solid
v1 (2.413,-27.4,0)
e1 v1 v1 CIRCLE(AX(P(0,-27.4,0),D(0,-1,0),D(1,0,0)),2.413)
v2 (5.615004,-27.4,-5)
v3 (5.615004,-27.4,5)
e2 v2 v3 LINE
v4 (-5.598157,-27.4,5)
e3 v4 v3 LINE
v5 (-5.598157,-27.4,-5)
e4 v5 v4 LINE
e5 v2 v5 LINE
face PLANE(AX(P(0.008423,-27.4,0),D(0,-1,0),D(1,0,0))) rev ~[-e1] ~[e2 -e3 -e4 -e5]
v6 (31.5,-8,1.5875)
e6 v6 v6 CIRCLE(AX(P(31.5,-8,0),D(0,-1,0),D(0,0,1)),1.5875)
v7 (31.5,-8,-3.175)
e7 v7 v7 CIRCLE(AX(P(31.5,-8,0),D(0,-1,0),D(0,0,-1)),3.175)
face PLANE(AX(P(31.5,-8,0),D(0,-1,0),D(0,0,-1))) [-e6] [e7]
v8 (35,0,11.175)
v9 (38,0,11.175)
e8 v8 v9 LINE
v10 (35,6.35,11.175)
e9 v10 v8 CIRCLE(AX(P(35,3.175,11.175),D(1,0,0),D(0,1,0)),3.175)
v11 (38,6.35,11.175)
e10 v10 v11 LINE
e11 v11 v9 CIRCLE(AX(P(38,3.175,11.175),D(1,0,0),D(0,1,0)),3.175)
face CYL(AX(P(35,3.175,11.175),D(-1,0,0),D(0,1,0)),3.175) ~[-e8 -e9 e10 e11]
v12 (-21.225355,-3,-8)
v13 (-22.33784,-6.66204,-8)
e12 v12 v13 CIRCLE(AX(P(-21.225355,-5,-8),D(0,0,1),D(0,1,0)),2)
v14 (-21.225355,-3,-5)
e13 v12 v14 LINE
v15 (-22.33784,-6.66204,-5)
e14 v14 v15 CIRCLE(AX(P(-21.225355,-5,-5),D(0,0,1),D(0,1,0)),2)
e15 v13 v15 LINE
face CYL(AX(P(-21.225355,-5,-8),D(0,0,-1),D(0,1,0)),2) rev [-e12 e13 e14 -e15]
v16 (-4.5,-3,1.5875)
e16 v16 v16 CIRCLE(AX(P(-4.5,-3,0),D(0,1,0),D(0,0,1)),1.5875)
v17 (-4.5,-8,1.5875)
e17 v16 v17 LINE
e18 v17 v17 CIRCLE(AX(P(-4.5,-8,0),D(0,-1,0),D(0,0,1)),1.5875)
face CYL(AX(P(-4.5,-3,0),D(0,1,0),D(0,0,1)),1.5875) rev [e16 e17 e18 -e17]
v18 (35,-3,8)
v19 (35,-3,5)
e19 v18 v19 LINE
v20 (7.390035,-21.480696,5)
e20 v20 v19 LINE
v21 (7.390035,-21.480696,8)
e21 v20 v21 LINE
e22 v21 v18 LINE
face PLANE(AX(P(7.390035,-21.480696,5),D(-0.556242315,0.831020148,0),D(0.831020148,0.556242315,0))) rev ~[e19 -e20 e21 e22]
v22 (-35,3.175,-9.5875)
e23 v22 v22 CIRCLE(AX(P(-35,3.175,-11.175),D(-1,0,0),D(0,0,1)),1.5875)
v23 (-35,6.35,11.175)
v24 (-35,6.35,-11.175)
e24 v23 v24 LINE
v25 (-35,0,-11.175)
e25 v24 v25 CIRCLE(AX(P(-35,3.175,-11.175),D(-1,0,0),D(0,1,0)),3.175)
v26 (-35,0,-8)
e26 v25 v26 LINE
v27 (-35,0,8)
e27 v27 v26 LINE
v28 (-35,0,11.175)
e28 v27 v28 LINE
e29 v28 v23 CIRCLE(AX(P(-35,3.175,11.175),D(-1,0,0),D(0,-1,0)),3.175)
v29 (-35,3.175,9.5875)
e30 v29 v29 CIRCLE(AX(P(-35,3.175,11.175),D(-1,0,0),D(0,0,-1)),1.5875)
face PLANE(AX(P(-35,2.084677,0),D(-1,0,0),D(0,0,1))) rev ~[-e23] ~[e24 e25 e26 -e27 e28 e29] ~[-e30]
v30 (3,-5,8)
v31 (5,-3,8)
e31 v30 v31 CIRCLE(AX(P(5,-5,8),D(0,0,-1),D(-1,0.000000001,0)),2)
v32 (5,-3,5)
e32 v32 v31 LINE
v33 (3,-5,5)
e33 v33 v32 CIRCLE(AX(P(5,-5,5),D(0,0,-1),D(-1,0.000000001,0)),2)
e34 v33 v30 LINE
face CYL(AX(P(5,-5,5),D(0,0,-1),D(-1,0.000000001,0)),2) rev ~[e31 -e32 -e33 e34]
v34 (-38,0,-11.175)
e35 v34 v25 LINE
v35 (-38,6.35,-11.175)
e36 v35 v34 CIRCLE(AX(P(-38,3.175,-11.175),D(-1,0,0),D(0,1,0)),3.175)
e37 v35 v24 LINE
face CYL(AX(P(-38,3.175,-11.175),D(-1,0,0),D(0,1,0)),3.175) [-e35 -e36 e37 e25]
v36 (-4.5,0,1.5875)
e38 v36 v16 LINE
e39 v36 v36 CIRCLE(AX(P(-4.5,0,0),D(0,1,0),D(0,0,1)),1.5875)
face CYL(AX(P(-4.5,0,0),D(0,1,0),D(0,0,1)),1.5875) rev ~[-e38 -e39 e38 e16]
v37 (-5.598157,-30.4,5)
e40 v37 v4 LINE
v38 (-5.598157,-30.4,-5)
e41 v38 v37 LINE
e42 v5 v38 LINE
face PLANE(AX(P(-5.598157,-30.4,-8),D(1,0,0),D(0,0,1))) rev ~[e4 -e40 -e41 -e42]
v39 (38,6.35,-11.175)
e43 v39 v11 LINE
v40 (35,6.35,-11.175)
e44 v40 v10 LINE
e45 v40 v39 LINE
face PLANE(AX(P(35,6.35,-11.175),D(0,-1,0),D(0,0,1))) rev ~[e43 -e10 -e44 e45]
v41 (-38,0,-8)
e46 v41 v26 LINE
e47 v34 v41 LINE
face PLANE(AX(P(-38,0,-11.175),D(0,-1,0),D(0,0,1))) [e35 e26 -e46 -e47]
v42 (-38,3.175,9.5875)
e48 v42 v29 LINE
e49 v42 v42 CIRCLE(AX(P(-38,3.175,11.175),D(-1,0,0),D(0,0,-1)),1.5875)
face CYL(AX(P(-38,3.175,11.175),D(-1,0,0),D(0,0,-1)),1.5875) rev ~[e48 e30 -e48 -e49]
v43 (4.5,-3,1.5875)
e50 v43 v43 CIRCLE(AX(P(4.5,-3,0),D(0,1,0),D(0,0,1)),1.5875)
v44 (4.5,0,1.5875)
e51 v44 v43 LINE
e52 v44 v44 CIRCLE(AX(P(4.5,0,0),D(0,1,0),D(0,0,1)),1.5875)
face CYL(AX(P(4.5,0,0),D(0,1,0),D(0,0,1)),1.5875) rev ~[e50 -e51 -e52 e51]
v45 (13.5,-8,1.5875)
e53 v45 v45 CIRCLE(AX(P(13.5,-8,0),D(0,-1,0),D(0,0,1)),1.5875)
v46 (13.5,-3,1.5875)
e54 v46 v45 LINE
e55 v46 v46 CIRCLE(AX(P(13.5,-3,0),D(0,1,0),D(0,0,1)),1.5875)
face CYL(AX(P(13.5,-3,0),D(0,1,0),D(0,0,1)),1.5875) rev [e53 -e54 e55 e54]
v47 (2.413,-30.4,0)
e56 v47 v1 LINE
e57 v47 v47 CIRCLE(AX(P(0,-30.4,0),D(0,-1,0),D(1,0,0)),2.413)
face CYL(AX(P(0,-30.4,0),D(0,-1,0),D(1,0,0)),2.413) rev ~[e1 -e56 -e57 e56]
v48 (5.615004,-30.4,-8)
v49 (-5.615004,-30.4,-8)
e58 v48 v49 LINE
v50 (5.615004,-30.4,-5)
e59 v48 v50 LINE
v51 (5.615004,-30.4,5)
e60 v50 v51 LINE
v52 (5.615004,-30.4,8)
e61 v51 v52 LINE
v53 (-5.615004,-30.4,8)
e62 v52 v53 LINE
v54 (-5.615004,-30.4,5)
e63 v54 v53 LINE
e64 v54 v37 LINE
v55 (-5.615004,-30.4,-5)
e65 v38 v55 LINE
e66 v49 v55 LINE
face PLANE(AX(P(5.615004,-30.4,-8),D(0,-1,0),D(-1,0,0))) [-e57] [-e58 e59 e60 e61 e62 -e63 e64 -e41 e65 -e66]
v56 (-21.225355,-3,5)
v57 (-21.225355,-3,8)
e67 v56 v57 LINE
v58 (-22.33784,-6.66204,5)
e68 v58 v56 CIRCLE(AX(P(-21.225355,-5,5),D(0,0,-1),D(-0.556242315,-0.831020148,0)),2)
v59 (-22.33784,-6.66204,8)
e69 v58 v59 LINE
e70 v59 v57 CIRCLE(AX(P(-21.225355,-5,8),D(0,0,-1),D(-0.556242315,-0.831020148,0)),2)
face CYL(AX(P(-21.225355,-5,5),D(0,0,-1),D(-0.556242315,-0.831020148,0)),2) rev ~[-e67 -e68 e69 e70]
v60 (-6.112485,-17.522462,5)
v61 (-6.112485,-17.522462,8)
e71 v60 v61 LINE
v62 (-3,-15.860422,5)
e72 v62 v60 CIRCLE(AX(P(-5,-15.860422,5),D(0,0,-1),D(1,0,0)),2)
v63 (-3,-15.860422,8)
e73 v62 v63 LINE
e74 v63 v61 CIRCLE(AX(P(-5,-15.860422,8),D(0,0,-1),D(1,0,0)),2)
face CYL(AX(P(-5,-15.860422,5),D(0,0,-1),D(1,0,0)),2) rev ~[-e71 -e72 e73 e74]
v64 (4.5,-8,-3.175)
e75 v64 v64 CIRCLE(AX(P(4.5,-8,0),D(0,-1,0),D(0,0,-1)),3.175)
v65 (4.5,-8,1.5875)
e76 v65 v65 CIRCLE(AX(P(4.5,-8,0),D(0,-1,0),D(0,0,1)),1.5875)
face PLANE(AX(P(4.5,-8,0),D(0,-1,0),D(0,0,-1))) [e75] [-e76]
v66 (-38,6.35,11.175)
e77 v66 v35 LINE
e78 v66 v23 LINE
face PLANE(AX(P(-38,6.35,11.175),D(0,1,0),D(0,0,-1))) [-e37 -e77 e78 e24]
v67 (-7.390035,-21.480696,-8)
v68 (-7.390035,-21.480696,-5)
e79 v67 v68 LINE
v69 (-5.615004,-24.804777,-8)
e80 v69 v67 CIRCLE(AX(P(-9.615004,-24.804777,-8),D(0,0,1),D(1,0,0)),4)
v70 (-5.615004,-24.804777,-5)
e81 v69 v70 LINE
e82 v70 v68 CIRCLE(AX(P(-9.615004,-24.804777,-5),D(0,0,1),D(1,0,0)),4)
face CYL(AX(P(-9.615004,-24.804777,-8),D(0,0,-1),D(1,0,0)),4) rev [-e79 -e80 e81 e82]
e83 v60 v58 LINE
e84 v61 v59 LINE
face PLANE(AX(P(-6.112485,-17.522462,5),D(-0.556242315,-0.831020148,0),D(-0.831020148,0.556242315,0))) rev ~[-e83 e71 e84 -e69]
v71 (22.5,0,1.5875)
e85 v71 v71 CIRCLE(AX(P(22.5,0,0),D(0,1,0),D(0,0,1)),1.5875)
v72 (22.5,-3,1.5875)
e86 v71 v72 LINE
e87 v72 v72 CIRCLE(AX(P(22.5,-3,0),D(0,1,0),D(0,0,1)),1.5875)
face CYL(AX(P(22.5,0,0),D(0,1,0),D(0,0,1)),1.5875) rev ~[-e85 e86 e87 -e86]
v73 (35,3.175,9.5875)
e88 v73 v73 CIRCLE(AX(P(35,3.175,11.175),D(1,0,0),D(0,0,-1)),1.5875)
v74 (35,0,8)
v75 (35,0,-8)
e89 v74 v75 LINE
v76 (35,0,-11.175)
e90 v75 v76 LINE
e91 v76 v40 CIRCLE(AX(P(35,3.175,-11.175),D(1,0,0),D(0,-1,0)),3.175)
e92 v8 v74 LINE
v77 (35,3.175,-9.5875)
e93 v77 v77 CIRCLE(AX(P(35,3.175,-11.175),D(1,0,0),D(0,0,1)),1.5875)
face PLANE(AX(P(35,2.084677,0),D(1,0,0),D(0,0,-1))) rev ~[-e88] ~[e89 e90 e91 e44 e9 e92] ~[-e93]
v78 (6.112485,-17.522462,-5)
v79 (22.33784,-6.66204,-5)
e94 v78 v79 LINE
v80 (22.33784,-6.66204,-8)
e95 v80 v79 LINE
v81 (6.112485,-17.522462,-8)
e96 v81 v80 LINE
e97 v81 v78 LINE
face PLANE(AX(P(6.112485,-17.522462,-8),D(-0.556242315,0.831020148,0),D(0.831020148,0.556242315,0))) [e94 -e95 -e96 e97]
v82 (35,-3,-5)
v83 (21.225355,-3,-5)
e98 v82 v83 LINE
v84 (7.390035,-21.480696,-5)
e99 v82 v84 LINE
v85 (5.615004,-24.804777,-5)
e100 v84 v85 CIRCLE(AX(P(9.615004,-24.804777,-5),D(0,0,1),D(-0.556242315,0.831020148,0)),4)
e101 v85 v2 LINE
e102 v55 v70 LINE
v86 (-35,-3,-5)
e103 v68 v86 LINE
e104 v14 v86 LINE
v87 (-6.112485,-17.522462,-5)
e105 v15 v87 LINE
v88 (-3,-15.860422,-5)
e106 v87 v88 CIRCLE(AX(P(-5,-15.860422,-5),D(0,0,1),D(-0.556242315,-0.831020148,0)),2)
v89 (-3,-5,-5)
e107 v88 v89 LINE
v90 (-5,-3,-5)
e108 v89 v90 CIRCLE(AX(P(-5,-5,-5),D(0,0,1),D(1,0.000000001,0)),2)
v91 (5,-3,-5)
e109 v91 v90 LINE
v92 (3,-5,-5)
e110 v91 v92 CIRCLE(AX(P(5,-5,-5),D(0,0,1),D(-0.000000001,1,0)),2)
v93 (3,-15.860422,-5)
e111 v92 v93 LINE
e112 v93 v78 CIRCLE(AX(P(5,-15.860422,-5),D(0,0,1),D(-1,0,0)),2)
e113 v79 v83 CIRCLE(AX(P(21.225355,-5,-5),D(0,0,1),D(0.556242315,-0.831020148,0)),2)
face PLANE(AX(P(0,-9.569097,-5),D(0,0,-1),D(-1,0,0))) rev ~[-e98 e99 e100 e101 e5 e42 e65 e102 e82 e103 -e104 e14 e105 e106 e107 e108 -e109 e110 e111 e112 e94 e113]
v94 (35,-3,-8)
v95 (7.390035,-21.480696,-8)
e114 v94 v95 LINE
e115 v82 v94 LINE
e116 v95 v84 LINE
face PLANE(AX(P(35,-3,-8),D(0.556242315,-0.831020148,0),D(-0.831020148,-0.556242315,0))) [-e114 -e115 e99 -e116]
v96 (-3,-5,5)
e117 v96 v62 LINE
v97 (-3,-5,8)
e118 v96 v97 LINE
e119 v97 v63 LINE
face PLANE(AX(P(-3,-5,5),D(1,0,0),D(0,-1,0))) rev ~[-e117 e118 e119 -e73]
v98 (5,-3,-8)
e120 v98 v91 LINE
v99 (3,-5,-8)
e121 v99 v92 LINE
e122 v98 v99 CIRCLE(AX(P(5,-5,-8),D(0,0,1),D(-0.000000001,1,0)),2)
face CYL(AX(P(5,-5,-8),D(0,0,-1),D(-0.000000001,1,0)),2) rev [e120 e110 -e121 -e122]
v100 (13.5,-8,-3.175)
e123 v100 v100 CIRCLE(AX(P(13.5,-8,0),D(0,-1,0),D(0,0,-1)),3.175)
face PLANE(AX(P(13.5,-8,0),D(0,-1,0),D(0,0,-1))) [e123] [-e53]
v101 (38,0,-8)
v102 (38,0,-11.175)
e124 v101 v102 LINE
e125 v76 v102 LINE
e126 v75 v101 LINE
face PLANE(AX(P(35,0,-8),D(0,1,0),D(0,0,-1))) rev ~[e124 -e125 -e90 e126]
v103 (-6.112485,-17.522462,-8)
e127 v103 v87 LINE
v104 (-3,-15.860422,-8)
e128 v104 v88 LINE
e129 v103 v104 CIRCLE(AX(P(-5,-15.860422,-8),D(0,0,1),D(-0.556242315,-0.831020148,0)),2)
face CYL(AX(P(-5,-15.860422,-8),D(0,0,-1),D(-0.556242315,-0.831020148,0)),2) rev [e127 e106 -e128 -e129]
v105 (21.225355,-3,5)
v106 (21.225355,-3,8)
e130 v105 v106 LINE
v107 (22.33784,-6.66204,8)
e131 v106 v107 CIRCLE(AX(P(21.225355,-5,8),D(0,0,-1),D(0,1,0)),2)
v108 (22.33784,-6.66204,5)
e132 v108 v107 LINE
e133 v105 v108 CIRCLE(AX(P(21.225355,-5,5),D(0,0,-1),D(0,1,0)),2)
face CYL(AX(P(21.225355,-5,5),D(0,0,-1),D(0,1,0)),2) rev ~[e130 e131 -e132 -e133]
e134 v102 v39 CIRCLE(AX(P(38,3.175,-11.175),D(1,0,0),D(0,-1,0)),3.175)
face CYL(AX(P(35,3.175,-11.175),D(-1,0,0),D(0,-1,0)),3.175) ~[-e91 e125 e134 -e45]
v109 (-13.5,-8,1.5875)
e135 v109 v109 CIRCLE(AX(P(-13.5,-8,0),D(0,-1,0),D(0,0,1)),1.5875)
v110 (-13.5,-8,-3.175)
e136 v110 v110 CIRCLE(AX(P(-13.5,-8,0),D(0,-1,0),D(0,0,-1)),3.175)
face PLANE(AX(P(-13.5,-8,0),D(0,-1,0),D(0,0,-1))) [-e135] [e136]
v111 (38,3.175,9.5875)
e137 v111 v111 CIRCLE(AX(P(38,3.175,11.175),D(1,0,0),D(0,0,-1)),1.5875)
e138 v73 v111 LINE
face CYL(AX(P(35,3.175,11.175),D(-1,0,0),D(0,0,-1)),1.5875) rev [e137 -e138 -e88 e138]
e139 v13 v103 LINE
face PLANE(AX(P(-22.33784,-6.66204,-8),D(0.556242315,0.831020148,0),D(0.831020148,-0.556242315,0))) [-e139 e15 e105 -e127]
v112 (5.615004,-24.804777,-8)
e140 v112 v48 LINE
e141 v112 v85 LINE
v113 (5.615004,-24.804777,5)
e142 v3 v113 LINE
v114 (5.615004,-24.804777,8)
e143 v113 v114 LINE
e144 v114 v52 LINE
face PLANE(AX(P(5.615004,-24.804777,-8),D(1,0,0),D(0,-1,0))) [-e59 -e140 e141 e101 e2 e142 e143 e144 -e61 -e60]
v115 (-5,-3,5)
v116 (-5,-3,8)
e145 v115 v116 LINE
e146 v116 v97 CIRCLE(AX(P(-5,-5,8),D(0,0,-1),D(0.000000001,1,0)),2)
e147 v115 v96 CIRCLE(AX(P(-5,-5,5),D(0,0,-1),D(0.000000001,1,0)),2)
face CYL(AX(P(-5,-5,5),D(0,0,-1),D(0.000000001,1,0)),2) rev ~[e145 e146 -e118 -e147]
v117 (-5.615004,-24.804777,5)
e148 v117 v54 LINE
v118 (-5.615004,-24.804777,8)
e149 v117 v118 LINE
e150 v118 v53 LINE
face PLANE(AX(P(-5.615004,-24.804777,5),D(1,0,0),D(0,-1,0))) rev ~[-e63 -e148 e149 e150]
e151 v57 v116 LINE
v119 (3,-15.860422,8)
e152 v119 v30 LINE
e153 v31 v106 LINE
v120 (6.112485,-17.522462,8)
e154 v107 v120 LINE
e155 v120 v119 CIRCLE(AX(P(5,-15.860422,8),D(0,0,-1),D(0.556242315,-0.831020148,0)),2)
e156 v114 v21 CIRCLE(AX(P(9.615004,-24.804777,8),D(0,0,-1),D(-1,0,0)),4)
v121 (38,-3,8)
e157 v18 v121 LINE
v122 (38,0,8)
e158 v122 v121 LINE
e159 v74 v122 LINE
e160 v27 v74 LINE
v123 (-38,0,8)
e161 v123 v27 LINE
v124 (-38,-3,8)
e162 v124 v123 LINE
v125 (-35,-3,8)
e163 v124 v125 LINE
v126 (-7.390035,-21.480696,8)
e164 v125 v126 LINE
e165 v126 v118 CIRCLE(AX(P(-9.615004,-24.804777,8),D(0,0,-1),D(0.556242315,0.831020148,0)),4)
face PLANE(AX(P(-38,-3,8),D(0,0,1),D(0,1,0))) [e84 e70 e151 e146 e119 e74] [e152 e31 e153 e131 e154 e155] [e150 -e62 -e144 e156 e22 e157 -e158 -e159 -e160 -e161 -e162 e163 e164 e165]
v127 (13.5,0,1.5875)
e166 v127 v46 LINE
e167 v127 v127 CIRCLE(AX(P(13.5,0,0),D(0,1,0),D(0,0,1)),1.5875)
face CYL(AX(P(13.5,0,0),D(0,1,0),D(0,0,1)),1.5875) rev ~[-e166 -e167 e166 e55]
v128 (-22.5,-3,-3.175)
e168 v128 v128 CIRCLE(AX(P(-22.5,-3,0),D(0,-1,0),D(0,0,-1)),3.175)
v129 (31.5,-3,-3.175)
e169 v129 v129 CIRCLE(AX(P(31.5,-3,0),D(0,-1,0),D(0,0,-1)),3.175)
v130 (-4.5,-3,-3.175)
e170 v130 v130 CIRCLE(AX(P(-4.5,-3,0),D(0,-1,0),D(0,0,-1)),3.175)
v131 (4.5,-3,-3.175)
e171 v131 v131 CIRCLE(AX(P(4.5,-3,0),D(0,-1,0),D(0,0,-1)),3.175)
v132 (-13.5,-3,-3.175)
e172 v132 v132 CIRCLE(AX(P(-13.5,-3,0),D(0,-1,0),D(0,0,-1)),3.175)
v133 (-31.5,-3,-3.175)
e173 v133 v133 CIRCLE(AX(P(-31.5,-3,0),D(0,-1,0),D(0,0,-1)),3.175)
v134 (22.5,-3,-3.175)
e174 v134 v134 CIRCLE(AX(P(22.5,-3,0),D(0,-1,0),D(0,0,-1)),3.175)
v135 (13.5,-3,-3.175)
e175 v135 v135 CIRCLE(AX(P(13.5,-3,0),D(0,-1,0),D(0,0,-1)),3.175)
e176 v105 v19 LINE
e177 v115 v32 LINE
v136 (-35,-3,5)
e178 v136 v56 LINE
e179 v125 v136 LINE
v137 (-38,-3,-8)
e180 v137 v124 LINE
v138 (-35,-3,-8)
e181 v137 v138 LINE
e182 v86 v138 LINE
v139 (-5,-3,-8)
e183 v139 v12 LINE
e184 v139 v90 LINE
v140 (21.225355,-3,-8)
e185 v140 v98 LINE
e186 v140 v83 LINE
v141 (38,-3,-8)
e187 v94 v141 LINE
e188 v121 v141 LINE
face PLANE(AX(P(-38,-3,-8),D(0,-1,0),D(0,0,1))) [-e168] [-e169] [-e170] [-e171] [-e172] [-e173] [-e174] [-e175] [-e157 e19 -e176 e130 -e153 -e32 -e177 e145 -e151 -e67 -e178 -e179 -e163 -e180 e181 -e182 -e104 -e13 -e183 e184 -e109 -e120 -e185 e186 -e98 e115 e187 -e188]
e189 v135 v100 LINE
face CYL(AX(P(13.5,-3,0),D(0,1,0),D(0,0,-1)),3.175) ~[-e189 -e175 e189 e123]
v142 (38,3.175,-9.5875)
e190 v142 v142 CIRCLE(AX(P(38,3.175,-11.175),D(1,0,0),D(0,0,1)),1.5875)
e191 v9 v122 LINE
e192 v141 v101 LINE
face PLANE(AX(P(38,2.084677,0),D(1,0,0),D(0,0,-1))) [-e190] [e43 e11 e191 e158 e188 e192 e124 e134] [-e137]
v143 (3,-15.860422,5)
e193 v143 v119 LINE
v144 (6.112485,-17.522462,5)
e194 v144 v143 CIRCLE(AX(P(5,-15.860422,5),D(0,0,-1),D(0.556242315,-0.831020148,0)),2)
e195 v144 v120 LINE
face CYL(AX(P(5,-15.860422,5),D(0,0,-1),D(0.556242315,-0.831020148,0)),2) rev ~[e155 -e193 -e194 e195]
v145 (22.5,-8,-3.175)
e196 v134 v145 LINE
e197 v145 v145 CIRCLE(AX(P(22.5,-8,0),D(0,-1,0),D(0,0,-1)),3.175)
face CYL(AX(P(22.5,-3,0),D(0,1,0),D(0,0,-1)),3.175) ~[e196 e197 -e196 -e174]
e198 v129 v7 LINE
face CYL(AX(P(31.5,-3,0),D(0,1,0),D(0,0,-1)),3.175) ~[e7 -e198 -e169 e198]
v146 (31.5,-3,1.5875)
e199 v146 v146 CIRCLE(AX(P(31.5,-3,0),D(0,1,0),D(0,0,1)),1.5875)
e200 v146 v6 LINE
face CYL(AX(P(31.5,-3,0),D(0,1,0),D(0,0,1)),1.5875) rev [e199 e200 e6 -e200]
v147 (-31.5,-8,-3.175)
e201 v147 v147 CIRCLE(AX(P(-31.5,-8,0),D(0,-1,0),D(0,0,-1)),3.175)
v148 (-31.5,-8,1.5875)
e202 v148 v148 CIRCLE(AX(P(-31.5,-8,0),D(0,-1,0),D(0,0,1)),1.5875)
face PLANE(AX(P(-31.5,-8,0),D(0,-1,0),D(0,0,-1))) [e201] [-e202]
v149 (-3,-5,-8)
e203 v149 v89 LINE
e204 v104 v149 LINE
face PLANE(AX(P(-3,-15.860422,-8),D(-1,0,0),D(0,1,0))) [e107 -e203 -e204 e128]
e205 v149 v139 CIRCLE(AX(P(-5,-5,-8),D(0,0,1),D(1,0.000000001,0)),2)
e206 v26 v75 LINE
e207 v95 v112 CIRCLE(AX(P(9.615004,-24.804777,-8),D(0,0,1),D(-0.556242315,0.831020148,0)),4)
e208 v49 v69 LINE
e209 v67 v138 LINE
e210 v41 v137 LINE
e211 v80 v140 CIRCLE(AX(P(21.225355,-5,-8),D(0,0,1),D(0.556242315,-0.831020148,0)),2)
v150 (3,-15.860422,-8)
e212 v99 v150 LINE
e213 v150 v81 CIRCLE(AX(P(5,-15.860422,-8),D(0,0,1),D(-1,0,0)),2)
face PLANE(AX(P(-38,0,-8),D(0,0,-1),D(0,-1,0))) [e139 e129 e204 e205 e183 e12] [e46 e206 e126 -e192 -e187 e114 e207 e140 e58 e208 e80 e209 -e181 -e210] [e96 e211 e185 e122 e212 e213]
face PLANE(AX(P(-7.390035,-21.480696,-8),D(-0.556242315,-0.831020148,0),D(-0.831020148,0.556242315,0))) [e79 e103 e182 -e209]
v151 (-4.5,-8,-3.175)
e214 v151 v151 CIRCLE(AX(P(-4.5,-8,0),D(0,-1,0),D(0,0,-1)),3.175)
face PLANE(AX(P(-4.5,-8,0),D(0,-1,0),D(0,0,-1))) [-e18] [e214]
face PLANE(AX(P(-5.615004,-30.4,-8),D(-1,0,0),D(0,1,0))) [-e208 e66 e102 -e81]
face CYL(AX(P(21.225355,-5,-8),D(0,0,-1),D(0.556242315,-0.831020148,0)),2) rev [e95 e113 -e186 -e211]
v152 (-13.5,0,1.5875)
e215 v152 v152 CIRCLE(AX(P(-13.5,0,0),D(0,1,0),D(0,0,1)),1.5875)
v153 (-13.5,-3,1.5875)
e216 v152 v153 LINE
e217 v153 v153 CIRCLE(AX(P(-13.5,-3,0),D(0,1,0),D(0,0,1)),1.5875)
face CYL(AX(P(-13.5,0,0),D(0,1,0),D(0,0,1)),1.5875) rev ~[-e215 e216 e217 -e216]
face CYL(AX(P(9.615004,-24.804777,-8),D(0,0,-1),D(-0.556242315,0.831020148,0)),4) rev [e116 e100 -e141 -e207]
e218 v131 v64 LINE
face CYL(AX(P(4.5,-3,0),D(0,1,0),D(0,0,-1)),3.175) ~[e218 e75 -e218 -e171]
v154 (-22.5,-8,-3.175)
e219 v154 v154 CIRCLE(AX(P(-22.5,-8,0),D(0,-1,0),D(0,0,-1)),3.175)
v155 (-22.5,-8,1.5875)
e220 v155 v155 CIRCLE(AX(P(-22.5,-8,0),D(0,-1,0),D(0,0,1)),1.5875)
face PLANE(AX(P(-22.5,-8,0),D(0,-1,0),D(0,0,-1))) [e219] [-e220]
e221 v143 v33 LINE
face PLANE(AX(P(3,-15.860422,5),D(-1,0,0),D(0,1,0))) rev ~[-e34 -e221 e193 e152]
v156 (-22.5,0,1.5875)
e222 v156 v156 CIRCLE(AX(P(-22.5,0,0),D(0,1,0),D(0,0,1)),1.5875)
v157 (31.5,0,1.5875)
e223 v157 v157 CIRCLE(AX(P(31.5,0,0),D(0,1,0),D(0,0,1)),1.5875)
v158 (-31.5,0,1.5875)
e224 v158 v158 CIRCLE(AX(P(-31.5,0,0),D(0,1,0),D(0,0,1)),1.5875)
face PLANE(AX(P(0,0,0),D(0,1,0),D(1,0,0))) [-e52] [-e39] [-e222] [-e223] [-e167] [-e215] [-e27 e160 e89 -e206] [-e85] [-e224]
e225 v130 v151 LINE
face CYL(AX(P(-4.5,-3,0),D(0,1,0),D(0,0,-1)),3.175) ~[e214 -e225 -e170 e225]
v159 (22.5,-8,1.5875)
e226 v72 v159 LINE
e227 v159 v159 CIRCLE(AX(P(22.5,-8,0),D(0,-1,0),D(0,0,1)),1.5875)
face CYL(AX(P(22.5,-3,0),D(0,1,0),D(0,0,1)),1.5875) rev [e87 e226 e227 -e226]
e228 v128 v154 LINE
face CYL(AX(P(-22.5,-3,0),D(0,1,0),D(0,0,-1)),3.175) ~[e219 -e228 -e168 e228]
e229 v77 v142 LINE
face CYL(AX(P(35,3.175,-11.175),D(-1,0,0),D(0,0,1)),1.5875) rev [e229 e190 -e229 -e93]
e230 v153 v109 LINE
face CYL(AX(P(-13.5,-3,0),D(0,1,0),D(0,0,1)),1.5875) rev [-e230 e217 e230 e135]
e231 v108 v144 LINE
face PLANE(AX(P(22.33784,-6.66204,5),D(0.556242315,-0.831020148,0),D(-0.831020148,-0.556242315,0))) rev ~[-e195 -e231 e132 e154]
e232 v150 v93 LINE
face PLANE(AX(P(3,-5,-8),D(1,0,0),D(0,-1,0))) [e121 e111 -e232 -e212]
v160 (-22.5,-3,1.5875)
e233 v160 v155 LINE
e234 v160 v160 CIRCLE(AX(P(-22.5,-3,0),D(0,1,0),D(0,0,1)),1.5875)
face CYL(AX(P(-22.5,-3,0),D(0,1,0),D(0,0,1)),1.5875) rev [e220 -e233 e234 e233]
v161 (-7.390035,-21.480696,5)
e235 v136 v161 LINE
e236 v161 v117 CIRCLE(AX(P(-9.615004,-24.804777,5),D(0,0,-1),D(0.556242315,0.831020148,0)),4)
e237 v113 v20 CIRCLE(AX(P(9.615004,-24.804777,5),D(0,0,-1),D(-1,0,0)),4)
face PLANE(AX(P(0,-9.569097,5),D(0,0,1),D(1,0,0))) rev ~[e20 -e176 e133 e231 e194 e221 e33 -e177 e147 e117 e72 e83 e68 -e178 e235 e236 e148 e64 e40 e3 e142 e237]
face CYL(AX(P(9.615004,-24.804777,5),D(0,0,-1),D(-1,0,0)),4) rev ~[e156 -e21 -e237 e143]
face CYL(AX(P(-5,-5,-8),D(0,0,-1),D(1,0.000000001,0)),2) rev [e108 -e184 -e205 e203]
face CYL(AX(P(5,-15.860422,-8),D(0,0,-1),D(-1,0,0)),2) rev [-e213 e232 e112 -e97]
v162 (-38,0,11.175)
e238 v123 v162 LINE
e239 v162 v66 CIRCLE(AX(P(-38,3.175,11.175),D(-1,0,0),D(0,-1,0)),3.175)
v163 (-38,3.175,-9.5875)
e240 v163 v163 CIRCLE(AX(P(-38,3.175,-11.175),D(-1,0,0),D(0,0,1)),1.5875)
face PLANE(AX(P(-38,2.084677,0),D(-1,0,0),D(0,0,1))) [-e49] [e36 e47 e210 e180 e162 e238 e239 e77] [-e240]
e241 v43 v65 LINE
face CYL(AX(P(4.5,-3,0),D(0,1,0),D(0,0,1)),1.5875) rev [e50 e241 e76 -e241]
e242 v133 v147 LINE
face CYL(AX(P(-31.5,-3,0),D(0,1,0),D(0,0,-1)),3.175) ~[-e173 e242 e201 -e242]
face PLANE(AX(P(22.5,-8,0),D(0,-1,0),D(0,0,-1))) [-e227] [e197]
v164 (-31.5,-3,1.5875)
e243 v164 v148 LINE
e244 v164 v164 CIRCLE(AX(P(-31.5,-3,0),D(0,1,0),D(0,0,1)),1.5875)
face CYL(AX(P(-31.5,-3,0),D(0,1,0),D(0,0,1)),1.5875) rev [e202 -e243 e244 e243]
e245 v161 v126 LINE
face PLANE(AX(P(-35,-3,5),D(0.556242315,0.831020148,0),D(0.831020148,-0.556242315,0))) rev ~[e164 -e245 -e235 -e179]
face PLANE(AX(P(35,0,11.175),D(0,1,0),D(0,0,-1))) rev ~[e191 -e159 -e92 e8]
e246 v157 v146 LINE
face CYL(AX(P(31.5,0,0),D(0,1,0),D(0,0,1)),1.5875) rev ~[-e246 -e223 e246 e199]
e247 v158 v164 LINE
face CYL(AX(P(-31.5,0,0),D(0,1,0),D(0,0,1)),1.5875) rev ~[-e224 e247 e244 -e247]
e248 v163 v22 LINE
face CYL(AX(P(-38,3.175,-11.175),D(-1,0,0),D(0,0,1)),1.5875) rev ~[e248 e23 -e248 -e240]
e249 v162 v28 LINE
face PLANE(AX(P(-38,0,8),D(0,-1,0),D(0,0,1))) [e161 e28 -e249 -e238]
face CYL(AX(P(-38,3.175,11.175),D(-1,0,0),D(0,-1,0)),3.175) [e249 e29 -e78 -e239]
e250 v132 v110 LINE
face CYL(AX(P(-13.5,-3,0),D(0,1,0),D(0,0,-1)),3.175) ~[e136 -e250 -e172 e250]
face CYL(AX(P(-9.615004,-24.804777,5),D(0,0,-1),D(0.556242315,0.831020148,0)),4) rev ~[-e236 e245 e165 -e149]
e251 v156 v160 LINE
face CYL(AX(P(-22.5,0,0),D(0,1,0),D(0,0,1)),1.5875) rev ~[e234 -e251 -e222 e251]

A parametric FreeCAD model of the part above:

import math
import FreeCAD as App
import Part
import Sketcher

doc = App.newDocument("Part")
params = doc.addObject("Spreadsheet::Sheet", "Params")
for row, (alias, value) in enumerate([
    ("sketch1_width", "70 mm"),
    ("sketch1_height", "16 mm"),
    ("pad1_length", "3 mm"),
    ("sketch2_radius", "4 mm"),
    ("sketch2_radius2", "2 mm"),
    ("sketch2_width", "70 mm"),
    ("sketch2_height", "3 mm"),
    ("pad2_length", "3 mm"),
    ("sketch3_radius", "4 mm"),
    ("sketch3_radius2", "2 mm"),
    ("sketch3_width", "70 mm"),
    ("sketch3_height", "3 mm"),
    ("pad3_length", "3 mm"),
    ("sketch4_height", "16 mm"),
    ("pad4_length", "3 mm"),
    ("sketch5_width", "3 mm"),
    ("sketch5_height", "16 mm"),
    ("sketch5_height2", "22.35 mm"),
    ("pad5_length", "3 mm"),
    ("sketch6_width", "3 mm"),
    ("sketch6_height", "16 mm"),
    ("sketch6_height2", "22.35 mm"),
    ("pad6_length", "3 mm"),
    ("sketch7_diameter", "6.35 mm"),
    ("pad7_length", "5 mm"),
], start=1):
    params.set(f"A{row}", alias)
    params.set(f"B{row}", "=" + value)
    params.setAlias(f"B{row}", alias)

body = doc.addObject("PartDesign::Body", "Body")

# Sketch on XZ plane
sketch1 = body.newObject("Sketcher::SketchObject", "Sketch")
sketch1.AttachmentSupport = (doc.getObject("XZ_Plane"), [""])
sketch1.MapMode = "FlatFace"
sketch1.addGeometry([
    Part.LineSegment(App.Vector(-35, -8, 0), App.Vector(-35, 8, 0)),  # 0
    Part.LineSegment(App.Vector(-35, 8, 0), App.Vector(35, 8, 0)),  # 1
    Part.LineSegment(App.Vector(35, 8, 0), App.Vector(35, -8, 0)),  # 2
    Part.LineSegment(App.Vector(35, -8, 0), App.Vector(-35, -8, 0)),  # 3
    Part.Circle(App.Vector(-31.5, 0, 0), App.Vector(0, 0, 1), 1.6),  # 4
    Part.Circle(App.Vector(-22.5, 0, 0), App.Vector(0, 0, 1), 1.6),  # 5
    Part.Circle(App.Vector(-13.5, 0, 0), App.Vector(0, 0, 1), 1.6),  # 6
    Part.Circle(App.Vector(-4.5, 0, 0), App.Vector(0, 0, 1), 1.6),  # 7
    Part.Circle(App.Vector(4.5, 0, 0), App.Vector(0, 0, 1), 1.6),  # 8
    Part.Circle(App.Vector(13.5, 0, 0), App.Vector(0, 0, 1), 1.6),  # 9
    Part.Circle(App.Vector(22.5, 0, 0), App.Vector(0, 0, 1), 1.6),  # 10
    Part.Circle(App.Vector(31.5, 0, 0), App.Vector(0, 0, 1), 1.6),  # 11
], False)
sketch1.addConstraint([
    Sketcher.Constraint("Coincident", 0, 2, 1, 1),
    Sketcher.Constraint("Coincident", 1, 2, 2, 1),
    Sketcher.Constraint("Coincident", 2, 2, 3, 1),
    Sketcher.Constraint("Coincident", 3, 2, 0, 1),
    Sketcher.Constraint("Vertical", 0),
    Sketcher.Constraint("Horizontal", 1),
    Sketcher.Constraint("Vertical", 2),
    Sketcher.Constraint("Horizontal", 3),
    Sketcher.Constraint("Equal", 4, 5),
    Sketcher.Constraint("Equal", 5, 6),
    Sketcher.Constraint("Equal", 6, 7),
    Sketcher.Constraint("Equal", 7, 8),
    Sketcher.Constraint("Equal", 8, 9),
    Sketcher.Constraint("Equal", 9, 10),
    Sketcher.Constraint("Equal", 10, 11),
    Sketcher.Constraint("Symmetric", 7, 3, 8, 3, -1, 1),
    Sketcher.Constraint("Symmetric", 6, 3, 9, 3, -1, 1),
    Sketcher.Constraint("Symmetric", 5, 3, 10, 3, -1, 1),
    Sketcher.Constraint("Symmetric", 4, 3, 11, 3, -1, 1),
    Sketcher.Constraint("Symmetric", 0, 2, 2, 2, -1, 1),
    Sketcher.Constraint("PointOnObject", 4, 3, -1),
    Sketcher.Constraint("PointOnObject", 5, 3, -1),
    Sketcher.Constraint("PointOnObject", 6, 3, -1),
    Sketcher.Constraint("PointOnObject", 7, 3, -1),
    Sketcher.Constraint("DistanceX", 1, 1, 1, 2, 70.0),
    Sketcher.Constraint("DistanceY", 0, 1, 0, 2, 16.0),
    Sketcher.Constraint("Diameter", 4, 3.175),
    Sketcher.Constraint("DistanceX", 4, 3, 5, 3, 9.0),
    Sketcher.Constraint("DistanceX", 5, 3, 6, 3, 9.0),
    Sketcher.Constraint("DistanceX", 6, 3, 7, 3, 9.0),
    Sketcher.Constraint("DistanceX", 7, 3, 8, 3, 9.0),
])
sketch1.setExpression("Constraints[24]", "Params.sketch1_width")
sketch1.setExpression("Constraints[25]", "Params.sketch1_height")
pad1 = body.newObject("PartDesign::Pad", "Pad")
pad1.Profile = sketch1
pad1.setExpression("Length", "Params.pad1_length")

# Sketch on XY plane
sketch2 = body.newObject("Sketcher::SketchObject", "Sketch001")
sketch2.AttachmentSupport = (doc.getObject("XY_Plane"), [""])
sketch2.MapMode = "FlatFace"
sketch2.AttachmentOffset = App.Placement(App.Vector(0, 0, -8), App.Rotation())
sketch2.addGeometry([
    Part.ArcOfCircle(Part.Circle(App.Vector(9.6, -24.8, 0), App.Vector(0, 0, 1), 4), math.radians(124), math.radians(180)),  # 0
    Part.LineSegment(App.Vector(5.6, -24.8, 0), App.Vector(5.6, -30.4, 0)),  # 1
    Part.LineSegment(App.Vector(5.6, -30.4, 0), App.Vector(-5.6, -30.4, 0)),  # 2
    Part.LineSegment(App.Vector(-5.6, -30.4, 0), App.Vector(-5.6, -24.8, 0)),  # 3
    Part.ArcOfCircle(Part.Circle(App.Vector(-9.6, -24.8, 0), App.Vector(0, 0, 1), 4), math.radians(0), math.radians(56)),  # 4
    Part.LineSegment(App.Vector(-7.4, -21.5, 0), App.Vector(-35, -3, 0)),  # 5
    Part.LineSegment(App.Vector(-35, -3, 0), App.Vector(-35, 0, 0)),  # 6
    Part.LineSegment(App.Vector(-35, 0, 0), App.Vector(35, 0, 0)),  # 7
    Part.LineSegment(App.Vector(35, 0, 0), App.Vector(35, -3, 0)),  # 8
    Part.LineSegment(App.Vector(35, -3, 0), App.Vector(7.4, -21.5, 0)),  # 9
    Part.ArcOfCircle(Part.Circle(App.Vector(5, -15.9, 0), App.Vector(0, 0, 1), 2), math.radians(-180), math.radians(-56)),  # 10
    Part.LineSegment(App.Vector(6.1, -17.5, 0), App.Vector(22.3, -6.7, 0)),  # 11
    Part.ArcOfCircle(Part.Circle(App.Vector(21.2, -5, 0), App.Vector(0, 0, 1), 2), math.radians(-56), math.radians(90)),  # 12
    Part.LineSegment(App.Vector(21.2, -3, 0), App.Vector(5, -3, 0)),  # 13
    Part.ArcOfCircle(Part.Circle(App.Vector(5, -5, 0), App.Vector(0, 0, 1), 2), math.radians(90), math.radians(180)),  # 14
    Part.LineSegment(App.Vector(3, -5, 0), App.Vector(3, -15.9, 0)),  # 15
    Part.ArcOfCircle(Part.Circle(App.Vector(-5, -15.9, 0), App.Vector(0, 0, 1), 2), math.radians(-124), math.radians(0)),  # 16
    Part.LineSegment(App.Vector(-3, -15.9, 0), App.Vector(-3, -5, 0)),  # 17
    Part.ArcOfCircle(Part.Circle(App.Vector(-5, -5, 0), App.Vector(0, 0, 1), 2), math.radians(0), math.radians(90)),  # 18
    Part.LineSegment(App.Vector(-5, -3, 0), App.Vector(-21.2, -3, 0)),  # 19
    Part.ArcOfCircle(Part.Circle(App.Vector(-21.2, -5, 0), App.Vector(0, 0, 1), 2), math.radians(90), math.radians(236)),  # 20
    Part.LineSegment(App.Vector(-22.3, -6.7, 0), App.Vector(-6.1, -17.5, 0)),  # 21
], False)
sketch2.addConstraint([
    Sketcher.Constraint("Tangent", 0, 2, 1, 1),
    Sketcher.Constraint("Coincident", 1, 2, 2, 1),
    Sketcher.Constraint("Coincident", 2, 2, 3, 1),
    Sketcher.Constraint("Tangent", 3, 2, 4, 1),
    Sketcher.Constraint("Tangent", 4, 2, 5, 1),
    Sketcher.Constraint("Coincident", 5, 2, 6, 1),
    Sketcher.Constraint("Coincident", 6, 2, 7, 1),
    Sketcher.Constraint("Coincident", 7, 2, 8, 1),
    Sketcher.Constraint("Coincident", 8, 2, 9, 1),
    Sketcher.Constraint("Tangent", 9, 2, 0, 1),
    Sketcher.Constraint("Tangent", 10, 2, 11, 1),
    Sketcher.Constraint("Tangent", 11, 2, 12, 1),
    Sketcher.Constraint("Tangent", 12, 2, 13, 1),
    Sketcher.Constraint("Tangent", 13, 2, 14, 1),
    Sketcher.Constraint("Tangent", 14, 2, 15, 1),
    Sketcher.Constraint("Tangent", 15, 2, 10, 1),
    Sketcher.Constraint("Tangent", 16, 2, 17, 1),
    Sketcher.Constraint("Tangent", 17, 2, 18, 1),
    Sketcher.Constraint("Tangent", 18, 2, 19, 1),
    Sketcher.Constraint("Tangent", 19, 2, 20, 1),
    Sketcher.Constraint("Tangent", 20, 2, 21, 1),
    Sketcher.Constraint("Tangent", 21, 2, 16, 1),
    Sketcher.Constraint("Vertical", 1),
    Sketcher.Constraint("Horizontal", 2),
    Sketcher.Constraint("Vertical", 3),
    Sketcher.Constraint("Vertical", 6),
    Sketcher.Constraint("Horizontal", 7),
    Sketcher.Constraint("Vertical", 8),
    Sketcher.Constraint("Horizontal", 13),
    Sketcher.Constraint("Vertical", 15),
    Sketcher.Constraint("Vertical", 17),
    Sketcher.Constraint("Horizontal", 19),
    Sketcher.Constraint("Equal", 0, 4),
    Sketcher.Constraint("Equal", 10, 12),
    Sketcher.Constraint("Equal", 12, 14),
    Sketcher.Constraint("Equal", 14, 16),
    Sketcher.Constraint("Equal", 16, 18),
    Sketcher.Constraint("Equal", 18, 20),
    Sketcher.Constraint("Symmetric", 6, 2, 7, 2, -1, 1),
    Sketcher.Constraint("Symmetric", 0, 3, 4, 3, -2),
    Sketcher.Constraint("Symmetric", 10, 3, 16, 3, -2),
    Sketcher.Constraint("Symmetric", 12, 3, 20, 3, -2),
    Sketcher.Constraint("Parallel", 9, 11),
    Sketcher.Constraint("Parallel", 5, 21),
    Sketcher.Constraint("Horizontal", 8, 2, 12, 2),
    Sketcher.Constraint("Radius", 0, 4.0),
    Sketcher.Constraint("Radius", 10, 2.0),
    Sketcher.Constraint("DistanceX", 7, 1, 7, 2, 70.0),
    Sketcher.Constraint("DistanceY", 6, 1, 6, 2, 3.0),
    Sketcher.Constraint("DistanceX", -1, 1, 10, 3, 5.0),
    Sketcher.Constraint("DistanceY", 1, 2, -1, 1, 30.4),
    Sketcher.Constraint("DistanceY", 15, 2, 15, 1, 10.860422),
    Sketcher.Constraint("DistanceX", 2, 2, 2, 1, 11.230008),
    Sketcher.Constraint("DistanceX", 13, 2, 13, 1, 16.225355),
])
sketch2.setExpression("Constraints[45]", "Params.sketch2_radius")
sketch2.setExpression("Constraints[46]", "Params.sketch2_radius2")
sketch2.setExpression("Constraints[47]", "Params.sketch2_width")
sketch2.setExpression("Constraints[48]", "Params.sketch2_height")
pad2 = body.newObject("PartDesign::Pad", "Pad001")
pad2.Profile = sketch2
pad2.setExpression("Length", "Params.pad2_length")

# Sketch on XY plane
sketch3 = body.newObject("Sketcher::SketchObject", "Sketch002")
sketch3.AttachmentSupport = (doc.getObject("XY_Plane"), [""])
sketch3.MapMode = "FlatFace"
sketch3.AttachmentOffset = App.Placement(App.Vector(0, 0, 5), App.Rotation())
sketch3.addGeometry([
    Part.ArcOfCircle(Part.Circle(App.Vector(-9.6, -24.8, 0), App.Vector(0, 0, 1), 4), math.radians(0), math.radians(56)),  # 0
    Part.LineSegment(App.Vector(-5.6, -24.8, 0), App.Vector(-5.6, -30.4, 0)),  # 1
    Part.LineSegment(App.Vector(-5.6, -30.4, 0), App.Vector(5.6, -30.4, 0)),  # 2
    Part.LineSegment(App.Vector(5.6, -30.4, 0), App.Vector(5.6, -24.8, 0)),  # 3
    Part.ArcOfCircle(Part.Circle(App.Vector(9.6, -24.8, 0), App.Vector(0, 0, 1), 4), math.radians(124), math.radians(180)),  # 4
    Part.LineSegment(App.Vector(7.4, -21.5, 0), App.Vector(35, -3, 0)),  # 5
    Part.LineSegment(App.Vector(35, -3, 0), App.Vector(35, 0, 0)),  # 6
    Part.LineSegment(App.Vector(35, 0, 0), App.Vector(-35, 0, 0)),  # 7
    Part.LineSegment(App.Vector(-35, 0, 0), App.Vector(-35, -3, 0)),  # 8
    Part.LineSegment(App.Vector(-35, -3, 0), App.Vector(-7.4, -21.5, 0)),  # 9
    Part.ArcOfCircle(Part.Circle(App.Vector(-5, -15.9, 0), App.Vector(0, 0, 1), 2), math.radians(-124), math.radians(0)),  # 10
    Part.LineSegment(App.Vector(-6.1, -17.5, 0), App.Vector(-22.3, -6.7, 0)),  # 11
    Part.ArcOfCircle(Part.Circle(App.Vector(-21.2, -5, 0), App.Vector(0, 0, 1), 2), math.radians(90), math.radians(236)),  # 12
    Part.LineSegment(App.Vector(-21.2, -3, 0), App.Vector(-5, -3, 0)),  # 13
    Part.ArcOfCircle(Part.Circle(App.Vector(-5, -5, 0), App.Vector(0, 0, 1), 2), math.radians(0), math.radians(90)),  # 14
    Part.LineSegment(App.Vector(-3, -5, 0), App.Vector(-3, -15.9, 0)),  # 15
    Part.ArcOfCircle(Part.Circle(App.Vector(5, -15.9, 0), App.Vector(0, 0, 1), 2), math.radians(-180), math.radians(-56)),  # 16
    Part.LineSegment(App.Vector(3, -15.9, 0), App.Vector(3, -5, 0)),  # 17
    Part.ArcOfCircle(Part.Circle(App.Vector(5, -5, 0), App.Vector(0, 0, 1), 2), math.radians(90), math.radians(180)),  # 18
    Part.LineSegment(App.Vector(5, -3, 0), App.Vector(21.2, -3, 0)),  # 19
    Part.ArcOfCircle(Part.Circle(App.Vector(21.2, -5, 0), App.Vector(0, 0, 1), 2), math.radians(-56), math.radians(90)),  # 20
    Part.LineSegment(App.Vector(22.3, -6.7, 0), App.Vector(6.1, -17.5, 0)),  # 21
], False)
sketch3.addConstraint([
    Sketcher.Constraint("Tangent", 0, 1, 1, 1),
    Sketcher.Constraint("Coincident", 1, 2, 2, 1),
    Sketcher.Constraint("Coincident", 2, 2, 3, 1),
    Sketcher.Constraint("Tangent", 3, 2, 4, 2),
    Sketcher.Constraint("Tangent", 4, 1, 5, 1),
    Sketcher.Constraint("Coincident", 5, 2, 6, 1),
    Sketcher.Constraint("Coincident", 6, 2, 7, 1),
    Sketcher.Constraint("Coincident", 7, 2, 8, 1),
    Sketcher.Constraint("Coincident", 8, 2, 9, 1),
    Sketcher.Constraint("Tangent", 9, 2, 0, 2),
    Sketcher.Constraint("Tangent", 10, 1, 11, 1),
    Sketcher.Constraint("Tangent", 11, 2, 12, 2),
    Sketcher.Constraint("Tangent", 12, 1, 13, 1),
    Sketcher.Constraint("Tangent", 13, 2, 14, 2),
    Sketcher.Constraint("Tangent", 14, 1, 15, 1),
    Sketcher.Constraint("Tangent", 15, 2, 10, 2),
    Sketcher.Constraint("Tangent", 16, 1, 17, 1),
    Sketcher.Constraint("Tangent", 17, 2, 18, 2),
    Sketcher.Constraint("Tangent", 18, 1, 19, 1),
    Sketcher.Constraint("Tangent", 19, 2, 20, 2),
    Sketcher.Constraint("Tangent", 20, 1, 21, 1),
    Sketcher.Constraint("Tangent", 21, 2, 16, 2),
    Sketcher.Constraint("Vertical", 1),
    Sketcher.Constraint("Horizontal", 2),
    Sketcher.Constraint("Vertical", 3),
    Sketcher.Constraint("Vertical", 6),
    Sketcher.Constraint("Horizontal", 7),
    Sketcher.Constraint("Vertical", 8),
    Sketcher.Constraint("Horizontal", 13),
    Sketcher.Constraint("Vertical", 15),
    Sketcher.Constraint("Vertical", 17),
    Sketcher.Constraint("Horizontal", 19),
    Sketcher.Constraint("Equal", 0, 4),
    Sketcher.Constraint("Equal", 10, 12),
    Sketcher.Constraint("Equal", 12, 14),
    Sketcher.Constraint("Equal", 14, 16),
    Sketcher.Constraint("Equal", 16, 18),
    Sketcher.Constraint("Equal", 18, 20),
    Sketcher.Constraint("Symmetric", 6, 2, 7, 2, -1, 1),
    Sketcher.Constraint("Symmetric", 0, 3, 4, 3, -2),
    Sketcher.Constraint("Symmetric", 10, 3, 16, 3, -2),
    Sketcher.Constraint("Symmetric", 12, 3, 20, 3, -2),
    Sketcher.Constraint("Parallel", 9, 11),
    Sketcher.Constraint("Parallel", 5, 21),
    Sketcher.Constraint("Horizontal", 8, 2, 12, 1),
    Sketcher.Constraint("Radius", 0, 4.0),
    Sketcher.Constraint("Radius", 10, 2.0),
    Sketcher.Constraint("DistanceX", 7, 2, 7, 1, 70.0),
    Sketcher.Constraint("DistanceY", 6, 1, 6, 2, 3.0),
    Sketcher.Constraint("DistanceX", 10, 3, -1, 1, 5.0),
    Sketcher.Constraint("DistanceY", 1, 2, -1, 1, 30.4),
    Sketcher.Constraint("DistanceY", 15, 2, 15, 1, 10.860422),
    Sketcher.Constraint("DistanceX", 2, 1, 2, 2, 11.230008),
    Sketcher.Constraint("DistanceX", 13, 1, 13, 2, 16.225355),
])
sketch3.setExpression("Constraints[45]", "Params.sketch3_radius")
sketch3.setExpression("Constraints[46]", "Params.sketch3_radius2")
sketch3.setExpression("Constraints[47]", "Params.sketch3_width")
sketch3.setExpression("Constraints[48]", "Params.sketch3_height")
pad3 = body.newObject("PartDesign::Pad", "Pad002")
pad3.Profile = sketch3
pad3.setExpression("Length", "Params.pad3_length")

# Sketch on XZ plane
sketch4 = body.newObject("Sketcher::SketchObject", "Sketch003")
sketch4.AttachmentSupport = (doc.getObject("XZ_Plane"), [""])
sketch4.MapMode = "FlatFace"
sketch4.AttachmentOffset = App.Placement(App.Vector(0, 0, 30.4), App.Rotation())
sketch4.addGeometry([
    Part.LineSegment(App.Vector(-5.6, 8, 0), App.Vector(-5.6, -8, 0)),  # 0
    Part.LineSegment(App.Vector(-5.6, -8, 0), App.Vector(5.6, -8, 0)),  # 1
    Part.LineSegment(App.Vector(5.6, -8, 0), App.Vector(5.6, 8, 0)),  # 2
    Part.LineSegment(App.Vector(5.6, 8, 0), App.Vector(-5.6, 8, 0)),  # 3
    Part.Circle(App.Vector(0, 0, 0), App.Vector(0, 0, 1), 2.4),  # 4
], False)
sketch4.addConstraint([
    Sketcher.Constraint("Coincident", 0, 2, 1, 1),
    Sketcher.Constraint("Coincident", 1, 2, 2, 1),
    Sketcher.Constraint("Coincident", 2, 2, 3, 1),
    Sketcher.Constraint("Coincident", 3, 2, 0, 1),
    Sketcher.Constraint("Vertical", 0),
    Sketcher.Constraint("Horizontal", 1),
    Sketcher.Constraint("Vertical", 2),
    Sketcher.Constraint("Horizontal", 3),
    Sketcher.Constraint("Coincident", 4, 3, -1, 1),
    Sketcher.Constraint("DistanceY", 0, 2, 0, 1, 16.0),
    Sketcher.Constraint("Diameter", 4, 4.826),
    Sketcher.Constraint("DistanceY", 0, 2, -1, 1, 8.0),
    Sketcher.Constraint("DistanceX", 1, 1, 1, 2, 11.213161),
    Sketcher.Constraint("DistanceX", 0, 2, -1, 1, 5.598157),
])
sketch4.setExpression("Constraints[9]", "Params.sketch4_height")
pad4 = body.newObject("PartDesign::Pad", "Pad003")
pad4.Profile = sketch4
pad4.setExpression("Length", "Params.pad4_length")
pad4.Reversed = True

# Sketch on YZ plane
sketch5 = body.newObject("Sketcher::SketchObject", "Sketch004")
sketch5.AttachmentSupport = (doc.getObject("YZ_Plane"), [""])
sketch5.MapMode = "FlatFace"
sketch5.AttachmentOffset = App.Placement(App.Vector(0, 0, 35), App.Rotation())
sketch5.addGeometry([
    Part.LineSegment(App.Vector(0, 11.2, 0), App.Vector(0, 8, 0)),  # 0
    Part.LineSegment(App.Vector(0, 8, 0), App.Vector(-3, 8, 0)),  # 1
    Part.LineSegment(App.Vector(-3, 8, 0), App.Vector(-3, -8, 0)),  # 2
    Part.LineSegment(App.Vector(-3, -8, 0), App.Vector(0, -8, 0)),  # 3
    Part.LineSegment(App.Vector(0, -8, 0), App.Vector(0, -11.2, 0)),  # 4
    Part.ArcOfCircle(Part.Circle(App.Vector(3.2, -11.2, 0), App.Vector(0, 0, 1), 3.2), math.radians(180), math.radians(360)),  # 5
    Part.LineSegment(App.Vector(6.3, -11.2, 0), App.Vector(6.3, 11.2, 0)),  # 6
    Part.ArcOfCircle(Part.Circle(App.Vector(3.2, 11.2, 0), App.Vector(0, 0, 1), 3.2), math.radians(0), math.radians(180)),  # 7
    Part.Circle(App.Vector(3.2, 11.2, 0), App.Vector(0, 0, 1), 1.6),  # 8
    Part.Circle(App.Vector(3.2, -11.2, 0), App.Vector(0, 0, 1), 1.6),  # 9
], False)
sketch5.addConstraint([
    Sketcher.Constraint("Coincident", 0, 2, 1, 1),
    Sketcher.Constraint("Coincident", 1, 2, 2, 1),
    Sketcher.Constraint("Coincident", 2, 2, 3, 1),
    Sketcher.Constraint("Coincident", 3, 2, 4, 1),
    Sketcher.Constraint("Tangent", 4, 2, 5, 1),
    Sketcher.Constraint("Tangent", 5, 2, 6, 1),
    Sketcher.Constraint("Tangent", 6, 2, 7, 1),
    Sketcher.Constraint("Tangent", 7, 2, 0, 1),
    Sketcher.Constraint("Vertical", 0),
    Sketcher.Constraint("Horizontal", 1),
    Sketcher.Constraint("Vertical", 2),
    Sketcher.Constraint("Horizontal", 3),
    Sketcher.Constraint("Vertical", 4),
    Sketcher.Constraint("Vertical", 6),
    Sketcher.Constraint("Coincident", 8, 3, 7, 3),
    Sketcher.Constraint("Coincident", 9, 3, 5, 3),
    Sketcher.Constraint("Equal", 5, 7),
    Sketcher.Constraint("Equal", 8, 9),
    Sketcher.Constraint("Symmetric", 0, 2, 3, 2, -1, 1),
    Sketcher.Constraint("Equal", 0, 4),
    Sketcher.Constraint("DistanceX", 1, 2, 1, 1, 3.0),
    Sketcher.Constraint("DistanceY", 2, 2, 2, 1, 16.0),
    Sketcher.Constraint("Diameter", 8, 3.175),
    Sketcher.Constraint("Radius", 5, 3.175),
    Sketcher.Constraint("DistanceY", 6, 1, 6, 2, 22.35),
])
sketch5.setExpression("Constraints[20]", "Params.sketch5_width")
sketch5.setExpression("Constraints[21]", "Params.sketch5_height")
sketch5.setExpression("Constraints[24]", "Params.sketch5_height2")
pad5 = body.newObject("PartDesign::Pad", "Pad004")
pad5.Profile = sketch5
pad5.setExpression("Length", "Params.pad5_length")

# Sketch on YZ plane
sketch6 = body.newObject("Sketcher::SketchObject", "Sketch005")
sketch6.AttachmentSupport = (doc.getObject("YZ_Plane"), [""])
sketch6.MapMode = "FlatFace"
sketch6.AttachmentOffset = App.Placement(App.Vector(0, 0, -38), App.Rotation())
sketch6.addGeometry([
    Part.LineSegment(App.Vector(0, -11.2, 0), App.Vector(0, -8, 0)),  # 0
    Part.LineSegment(App.Vector(0, -8, 0), App.Vector(-3, -8, 0)),  # 1
    Part.LineSegment(App.Vector(-3, -8, 0), App.Vector(-3, 8, 0)),  # 2
    Part.LineSegment(App.Vector(-3, 8, 0), App.Vector(0, 8, 0)),  # 3
    Part.LineSegment(App.Vector(0, 8, 0), App.Vector(0, 11.2, 0)),  # 4
    Part.ArcOfCircle(Part.Circle(App.Vector(3.2, 11.2, 0), App.Vector(0, 0, 1), 3.2), math.radians(0), math.radians(180)),  # 5
    Part.LineSegment(App.Vector(6.3, 11.2, 0), App.Vector(6.3, -11.2, 0)),  # 6
    Part.ArcOfCircle(Part.Circle(App.Vector(3.2, -11.2, 0), App.Vector(0, 0, 1), 3.2), math.radians(180), math.radians(360)),  # 7
    Part.Circle(App.Vector(3.2, -11.2, 0), App.Vector(0, 0, 1), 1.6),  # 8
    Part.Circle(App.Vector(3.2, 11.2, 0), App.Vector(0, 0, 1), 1.6),  # 9
], False)
sketch6.addConstraint([
    Sketcher.Constraint("Coincident", 0, 2, 1, 1),
    Sketcher.Constraint("Coincident", 1, 2, 2, 1),
    Sketcher.Constraint("Coincident", 2, 2, 3, 1),
    Sketcher.Constraint("Coincident", 3, 2, 4, 1),
    Sketcher.Constraint("Tangent", 4, 2, 5, 2),
    Sketcher.Constraint("Tangent", 5, 1, 6, 1),
    Sketcher.Constraint("Tangent", 6, 2, 7, 2),
    Sketcher.Constraint("Tangent", 7, 1, 0, 1),
    Sketcher.Constraint("Vertical", 0),
    Sketcher.Constraint("Horizontal", 1),
    Sketcher.Constraint("Vertical", 2),
    Sketcher.Constraint("Horizontal", 3),
    Sketcher.Constraint("Vertical", 4),
    Sketcher.Constraint("Vertical", 6),
    Sketcher.Constraint("Coincident", 8, 3, 7, 3),
    Sketcher.Constraint("Coincident", 9, 3, 5, 3),
    Sketcher.Constraint("Equal", 5, 7),
    Sketcher.Constraint("Equal", 8, 9),
    Sketcher.Constraint("Symmetric", 0, 2, 3, 2, -1, 1),
    Sketcher.Constraint("Equal", 0, 4),
    Sketcher.Constraint("DistanceX", 1, 2, 1, 1, 3.0),
    Sketcher.Constraint("DistanceY", 2, 1, 2, 2, 16.0),
    Sketcher.Constraint("Diameter", 8, 3.175),
    Sketcher.Constraint("Radius", 5, 3.175),
    Sketcher.Constraint("DistanceY", 6, 2, 6, 1, 22.35),
])
sketch6.setExpression("Constraints[20]", "Params.sketch6_width")
sketch6.setExpression("Constraints[21]", "Params.sketch6_height")
sketch6.setExpression("Constraints[24]", "Params.sketch6_height2")
pad6 = body.newObject("PartDesign::Pad", "Pad005")
pad6.Profile = sketch6
pad6.setExpression("Length", "Params.pad6_length")

# Sketch on XZ plane
sketch7 = body.newObject("Sketcher::SketchObject", "Sketch006")
sketch7.AttachmentSupport = (doc.getObject("XZ_Plane"), [""])
sketch7.MapMode = "FlatFace"
sketch7.AttachmentOffset = App.Placement(App.Vector(0, 0, 3), App.Rotation())
sketch7.addGeometry([
    Part.Circle(App.Vector(-31.5, 0, 0), App.Vector(0, 0, 1), 3.2),  # 0
    Part.Circle(App.Vector(-31.5, 0, 0), App.Vector(0, 0, 1), 1.6),  # 1
    Part.Circle(App.Vector(-22.5, 0, 0), App.Vector(0, 0, 1), 3.2),  # 2
    Part.Circle(App.Vector(-22.5, 0, 0), App.Vector(0, 0, 1), 1.6),  # 3
    Part.Circle(App.Vector(-13.5, 0, 0), App.Vector(0, 0, 1), 3.2),  # 4
    Part.Circle(App.Vector(-13.5, 0, 0), App.Vector(0, 0, 1), 1.6),  # 5
    Part.Circle(App.Vector(-4.5, 0, 0), App.Vector(0, 0, 1), 3.2),  # 6
    Part.Circle(App.Vector(-4.5, 0, 0), App.Vector(0, 0, 1), 1.6),  # 7
    Part.Circle(App.Vector(4.5, 0, 0), App.Vector(0, 0, 1), 3.2),  # 8
    Part.Circle(App.Vector(4.5, 0, 0), App.Vector(0, 0, 1), 1.6),  # 9
    Part.Circle(App.Vector(13.5, 0, 0), App.Vector(0, 0, 1), 3.2),  # 10
    Part.Circle(App.Vector(13.5, 0, 0), App.Vector(0, 0, 1), 1.6),  # 11
    Part.Circle(App.Vector(22.5, 0, 0), App.Vector(0, 0, 1), 3.2),  # 12
    Part.Circle(App.Vector(22.5, 0, 0), App.Vector(0, 0, 1), 1.6),  # 13
    Part.Circle(App.Vector(31.5, 0, 0), App.Vector(0, 0, 1), 3.2),  # 14
    Part.Circle(App.Vector(31.5, 0, 0), App.Vector(0, 0, 1), 1.6),  # 15
], False)
sketch7.addConstraint([
    Sketcher.Constraint("Coincident", 1, 3, 0, 3),
    Sketcher.Constraint("Coincident", 3, 3, 2, 3),
    Sketcher.Constraint("Coincident", 5, 3, 4, 3),
    Sketcher.Constraint("Coincident", 7, 3, 6, 3),
    Sketcher.Constraint("Coincident", 9, 3, 8, 3),
    Sketcher.Constraint("Coincident", 11, 3, 10, 3),
    Sketcher.Constraint("Coincident", 13, 3, 12, 3),
    Sketcher.Constraint("Coincident", 15, 3, 14, 3),
    Sketcher.Constraint("Equal", 0, 2),
    Sketcher.Constraint("Equal", 1, 3),
    Sketcher.Constraint("Equal", 2, 4),
    Sketcher.Constraint("Equal", 3, 5),
    Sketcher.Constraint("Equal", 4, 6),
    Sketcher.Constraint("Equal", 5, 7),
    Sketcher.Constraint("Equal", 6, 8),
    Sketcher.Constraint("Equal", 7, 9),
    Sketcher.Constraint("Equal", 8, 10),
    Sketcher.Constraint("Equal", 9, 11),
    Sketcher.Constraint("Equal", 10, 12),
    Sketcher.Constraint("Equal", 11, 13),
    Sketcher.Constraint("Equal", 12, 14),
    Sketcher.Constraint("Equal", 13, 15),
    Sketcher.Constraint("Symmetric", 6, 3, 8, 3, -1, 1),
    Sketcher.Constraint("Symmetric", 4, 3, 10, 3, -1, 1),
    Sketcher.Constraint("Symmetric", 2, 3, 12, 3, -1, 1),
    Sketcher.Constraint("Symmetric", 0, 3, 14, 3, -1, 1),
    Sketcher.Constraint("PointOnObject", 0, 3, -1),
    Sketcher.Constraint("PointOnObject", 2, 3, -1),
    Sketcher.Constraint("PointOnObject", 4, 3, -1),
    Sketcher.Constraint("PointOnObject", 6, 3, -1),
    Sketcher.Constraint("Diameter", 0, 6.35),
    Sketcher.Constraint("Diameter", 1, 3.175),
    Sketcher.Constraint("DistanceX", 0, 3, 2, 3, 9.0),
    Sketcher.Constraint("DistanceX", 2, 3, 4, 3, 9.0),
    Sketcher.Constraint("DistanceX", 4, 3, 6, 3, 9.0),
    Sketcher.Constraint("DistanceX", 6, 3, 8, 3, 9.0),
])
sketch7.setExpression("Constraints[30]", "Params.sketch7_diameter")
pad7 = body.newObject("PartDesign::Pad", "Pad006")
pad7.Profile = sketch7
pad7.setExpression("Length", "Params.pad7_length")

doc.recompute()
